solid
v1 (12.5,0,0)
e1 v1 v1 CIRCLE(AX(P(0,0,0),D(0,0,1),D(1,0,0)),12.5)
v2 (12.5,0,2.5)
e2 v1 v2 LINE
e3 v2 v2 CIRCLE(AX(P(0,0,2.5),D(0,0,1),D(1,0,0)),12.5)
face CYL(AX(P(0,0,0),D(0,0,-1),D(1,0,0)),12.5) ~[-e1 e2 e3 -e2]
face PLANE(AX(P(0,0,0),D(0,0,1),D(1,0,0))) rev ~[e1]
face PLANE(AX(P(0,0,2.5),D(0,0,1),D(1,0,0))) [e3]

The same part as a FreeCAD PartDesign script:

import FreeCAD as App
import Part
import Sketcher

doc = App.newDocument("Part")
body = doc.addObject("PartDesign::Body", "Body")

# Sketch on XY plane
sketch1 = body.newObject("Sketcher::SketchObject", "Sketch")
sketch1.AttachmentSupport = (doc.getObject("XY_Plane"), [""])
sketch1.MapMode = "FlatFace"
sketch1.addGeometry(Part.Circle(App.Vector(0, 0, 0), App.Vector(0, 0, 1), 12), False)
sketch1.addConstraint([
    Sketcher.Constraint("Coincident", 0, 3, -1, 1),
    Sketcher.Constraint("Diameter", 0, 25.0),
])
pad1 = body.newObject("PartDesign::Pad", "Pad")
pad1.Profile = sketch1
pad1.Length = 2.5

doc.recompute()
